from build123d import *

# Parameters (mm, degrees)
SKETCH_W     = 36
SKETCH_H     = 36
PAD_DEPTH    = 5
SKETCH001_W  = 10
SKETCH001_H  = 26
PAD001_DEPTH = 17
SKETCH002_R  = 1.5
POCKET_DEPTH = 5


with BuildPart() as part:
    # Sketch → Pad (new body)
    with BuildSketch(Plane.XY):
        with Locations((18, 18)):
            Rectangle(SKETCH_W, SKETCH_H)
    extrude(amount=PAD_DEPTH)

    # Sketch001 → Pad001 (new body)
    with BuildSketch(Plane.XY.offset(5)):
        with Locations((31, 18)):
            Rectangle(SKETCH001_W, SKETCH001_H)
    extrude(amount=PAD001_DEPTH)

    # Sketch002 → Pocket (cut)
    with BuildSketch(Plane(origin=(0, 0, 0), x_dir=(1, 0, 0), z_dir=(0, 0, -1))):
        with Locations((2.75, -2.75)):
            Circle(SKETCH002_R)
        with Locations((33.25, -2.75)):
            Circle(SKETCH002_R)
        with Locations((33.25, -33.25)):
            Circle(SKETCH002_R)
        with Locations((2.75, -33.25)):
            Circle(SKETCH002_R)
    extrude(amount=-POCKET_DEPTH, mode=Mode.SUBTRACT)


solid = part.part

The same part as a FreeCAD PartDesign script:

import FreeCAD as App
import Part
import Sketcher
from FreeCAD import Vector


def add_polygon(sketch, points):
    """Adds a closed chain of lines whose ends are joined by coincident constraints."""
    first, n = sketch.GeometryCount, len(points)
    for a, b in zip(points, points[1:] + points[:1]):
        sketch.addGeometry(Part.LineSegment(App.Vector(*a, 0), App.Vector(*b, 0)), False)
    for i in range(n):
        sketch.addConstraint(Sketcher.Constraint("Coincident", first + i, 2, first + (i + 1) % n, 1))

doc = App.newDocument("Part")
body = doc.addObject("PartDesign::Body", "Body")

sketch1 = body.newObject("Sketcher::SketchObject", "Sketch")
sketch1.AttachmentSupport = (doc.getObject("XY_Plane"), [""])
sketch1.MapMode = "FlatFace"
add_polygon(sketch1, [(0, 36), (0, 0), (36, 0), (36, 36)])
sketch1.addConstraint(Sketcher.Constraint("Vertical", 0))
sketch1.addConstraint(Sketcher.Constraint("Horizontal", 1))
sketch1.addConstraint(Sketcher.Constraint("Vertical", 2))
sketch1.addConstraint(Sketcher.Constraint("Horizontal", 3))
sketch1.addConstraint(Sketcher.Constraint("Coincident", 0, 2, -1, 1))
sketch1.addConstraint(Sketcher.Constraint("Equal", 3, 0))
sketch1.addConstraint(Sketcher.Constraint("DistanceX", 1, 1, 1, 2, 36.0))
pad1 = body.newObject("PartDesign::Pad", "Pad")
pad1.Profile = sketch1
pad1.Length = 5

sketch2 = body.newObject("Sketcher::SketchObject", "Sketch001")
sketch2.AttachmentSupport = (doc.getObject("XY_Plane"), [""])
sketch2.MapMode = "FlatFace"
sketch2.AttachmentOffset = App.Placement(Vector(0, 0, 5), App.Rotation())
add_polygon(sketch2, [(26, 31), (26, 5), (36, 5), (36, 31)])
sketch2.addConstraint(Sketcher.Constraint("Vertical", 0))
sketch2.addConstraint(Sketcher.Constraint("Horizontal", 1))
sketch2.addConstraint(Sketcher.Constraint("Vertical", 2))
sketch2.addConstraint(Sketcher.Constraint("Horizontal", 3))
sketch2.addConstraint(Sketcher.Constraint("DistanceX", 1, 1, 1, 2, 10.0))
sketch2.addConstraint(Sketcher.Constraint("DistanceY", 0, 2, 0, 1, 26.0))
sketch2.addConstraint(Sketcher.Constraint("DistanceX", -1, 1, 0, 2, 26.0))
sketch2.addConstraint(Sketcher.Constraint("DistanceY", -1, 1, 0, 2, 5.0))
pad2 = body.newObject("PartDesign::Pad", "Pad001")
pad2.Profile = sketch2
pad2.Length = 17

sketch3 = body.newObject("Sketcher::SketchObject", "Sketch002")
sketch3.AttachmentSupport = (doc.getObject("XY_Plane"), [""])
sketch3.MapMode = "FlatFace"
sketch3.addGeometry(Part.Circle(Vector(2.8, 2.8, 0), Vector(0, 0, 1), 1.5), False)
sketch3.addGeometry(Part.Circle(Vector(33.2, 2.8, 0), Vector(0, 0, 1), 1.5), False)
sketch3.addGeometry(Part.Circle(Vector(33.2, 33.2, 0), Vector(0, 0, 1), 1.5), False)
sketch3.addGeometry(Part.Circle(Vector(2.8, 33.2, 0), Vector(0, 0, 1), 1.5), False)
sketch3.addConstraint(Sketcher.Constraint("Equal", 0, 1))
sketch3.addConstraint(Sketcher.Constraint("Equal", 1, 2))
sketch3.addConstraint(Sketcher.Constraint("Equal", 2, 3))
sketch3.addConstraint(Sketcher.Constraint("Horizontal", 0, 3, 1, 3))
sketch3.addConstraint(Sketcher.Constraint("Horizontal", 2, 3, 3, 3))
sketch3.addConstraint(Sketcher.Constraint("Vertical", 1, 3, 2, 3))
sketch3.addConstraint(Sketcher.Constraint("Vertical", 0, 3, 3, 3))
sketch3.addConstraint(Sketcher.Constraint("Diameter", 0, 3.0))
sketch3.addConstraint(Sketcher.Constraint("DistanceX", 0, 3, 1, 3, 30.5))
sketch3.addConstraint(Sketcher.Constraint("DistanceY", 1, 3, 2, 3, 30.5))
sketch3.addConstraint(Sketcher.Constraint("DistanceX", -1, 1, 0, 3, 2.75))
sketch3.addConstraint(Sketcher.Constraint("DistanceY", -1, 1, 0, 3, 2.75))
pocket1 = body.newObject("PartDesign::Pocket", "Pocket")
pocket1.Profile = sketch3
pocket1.Length = 5
pocket1.Reversed = True

doc.recompute()
